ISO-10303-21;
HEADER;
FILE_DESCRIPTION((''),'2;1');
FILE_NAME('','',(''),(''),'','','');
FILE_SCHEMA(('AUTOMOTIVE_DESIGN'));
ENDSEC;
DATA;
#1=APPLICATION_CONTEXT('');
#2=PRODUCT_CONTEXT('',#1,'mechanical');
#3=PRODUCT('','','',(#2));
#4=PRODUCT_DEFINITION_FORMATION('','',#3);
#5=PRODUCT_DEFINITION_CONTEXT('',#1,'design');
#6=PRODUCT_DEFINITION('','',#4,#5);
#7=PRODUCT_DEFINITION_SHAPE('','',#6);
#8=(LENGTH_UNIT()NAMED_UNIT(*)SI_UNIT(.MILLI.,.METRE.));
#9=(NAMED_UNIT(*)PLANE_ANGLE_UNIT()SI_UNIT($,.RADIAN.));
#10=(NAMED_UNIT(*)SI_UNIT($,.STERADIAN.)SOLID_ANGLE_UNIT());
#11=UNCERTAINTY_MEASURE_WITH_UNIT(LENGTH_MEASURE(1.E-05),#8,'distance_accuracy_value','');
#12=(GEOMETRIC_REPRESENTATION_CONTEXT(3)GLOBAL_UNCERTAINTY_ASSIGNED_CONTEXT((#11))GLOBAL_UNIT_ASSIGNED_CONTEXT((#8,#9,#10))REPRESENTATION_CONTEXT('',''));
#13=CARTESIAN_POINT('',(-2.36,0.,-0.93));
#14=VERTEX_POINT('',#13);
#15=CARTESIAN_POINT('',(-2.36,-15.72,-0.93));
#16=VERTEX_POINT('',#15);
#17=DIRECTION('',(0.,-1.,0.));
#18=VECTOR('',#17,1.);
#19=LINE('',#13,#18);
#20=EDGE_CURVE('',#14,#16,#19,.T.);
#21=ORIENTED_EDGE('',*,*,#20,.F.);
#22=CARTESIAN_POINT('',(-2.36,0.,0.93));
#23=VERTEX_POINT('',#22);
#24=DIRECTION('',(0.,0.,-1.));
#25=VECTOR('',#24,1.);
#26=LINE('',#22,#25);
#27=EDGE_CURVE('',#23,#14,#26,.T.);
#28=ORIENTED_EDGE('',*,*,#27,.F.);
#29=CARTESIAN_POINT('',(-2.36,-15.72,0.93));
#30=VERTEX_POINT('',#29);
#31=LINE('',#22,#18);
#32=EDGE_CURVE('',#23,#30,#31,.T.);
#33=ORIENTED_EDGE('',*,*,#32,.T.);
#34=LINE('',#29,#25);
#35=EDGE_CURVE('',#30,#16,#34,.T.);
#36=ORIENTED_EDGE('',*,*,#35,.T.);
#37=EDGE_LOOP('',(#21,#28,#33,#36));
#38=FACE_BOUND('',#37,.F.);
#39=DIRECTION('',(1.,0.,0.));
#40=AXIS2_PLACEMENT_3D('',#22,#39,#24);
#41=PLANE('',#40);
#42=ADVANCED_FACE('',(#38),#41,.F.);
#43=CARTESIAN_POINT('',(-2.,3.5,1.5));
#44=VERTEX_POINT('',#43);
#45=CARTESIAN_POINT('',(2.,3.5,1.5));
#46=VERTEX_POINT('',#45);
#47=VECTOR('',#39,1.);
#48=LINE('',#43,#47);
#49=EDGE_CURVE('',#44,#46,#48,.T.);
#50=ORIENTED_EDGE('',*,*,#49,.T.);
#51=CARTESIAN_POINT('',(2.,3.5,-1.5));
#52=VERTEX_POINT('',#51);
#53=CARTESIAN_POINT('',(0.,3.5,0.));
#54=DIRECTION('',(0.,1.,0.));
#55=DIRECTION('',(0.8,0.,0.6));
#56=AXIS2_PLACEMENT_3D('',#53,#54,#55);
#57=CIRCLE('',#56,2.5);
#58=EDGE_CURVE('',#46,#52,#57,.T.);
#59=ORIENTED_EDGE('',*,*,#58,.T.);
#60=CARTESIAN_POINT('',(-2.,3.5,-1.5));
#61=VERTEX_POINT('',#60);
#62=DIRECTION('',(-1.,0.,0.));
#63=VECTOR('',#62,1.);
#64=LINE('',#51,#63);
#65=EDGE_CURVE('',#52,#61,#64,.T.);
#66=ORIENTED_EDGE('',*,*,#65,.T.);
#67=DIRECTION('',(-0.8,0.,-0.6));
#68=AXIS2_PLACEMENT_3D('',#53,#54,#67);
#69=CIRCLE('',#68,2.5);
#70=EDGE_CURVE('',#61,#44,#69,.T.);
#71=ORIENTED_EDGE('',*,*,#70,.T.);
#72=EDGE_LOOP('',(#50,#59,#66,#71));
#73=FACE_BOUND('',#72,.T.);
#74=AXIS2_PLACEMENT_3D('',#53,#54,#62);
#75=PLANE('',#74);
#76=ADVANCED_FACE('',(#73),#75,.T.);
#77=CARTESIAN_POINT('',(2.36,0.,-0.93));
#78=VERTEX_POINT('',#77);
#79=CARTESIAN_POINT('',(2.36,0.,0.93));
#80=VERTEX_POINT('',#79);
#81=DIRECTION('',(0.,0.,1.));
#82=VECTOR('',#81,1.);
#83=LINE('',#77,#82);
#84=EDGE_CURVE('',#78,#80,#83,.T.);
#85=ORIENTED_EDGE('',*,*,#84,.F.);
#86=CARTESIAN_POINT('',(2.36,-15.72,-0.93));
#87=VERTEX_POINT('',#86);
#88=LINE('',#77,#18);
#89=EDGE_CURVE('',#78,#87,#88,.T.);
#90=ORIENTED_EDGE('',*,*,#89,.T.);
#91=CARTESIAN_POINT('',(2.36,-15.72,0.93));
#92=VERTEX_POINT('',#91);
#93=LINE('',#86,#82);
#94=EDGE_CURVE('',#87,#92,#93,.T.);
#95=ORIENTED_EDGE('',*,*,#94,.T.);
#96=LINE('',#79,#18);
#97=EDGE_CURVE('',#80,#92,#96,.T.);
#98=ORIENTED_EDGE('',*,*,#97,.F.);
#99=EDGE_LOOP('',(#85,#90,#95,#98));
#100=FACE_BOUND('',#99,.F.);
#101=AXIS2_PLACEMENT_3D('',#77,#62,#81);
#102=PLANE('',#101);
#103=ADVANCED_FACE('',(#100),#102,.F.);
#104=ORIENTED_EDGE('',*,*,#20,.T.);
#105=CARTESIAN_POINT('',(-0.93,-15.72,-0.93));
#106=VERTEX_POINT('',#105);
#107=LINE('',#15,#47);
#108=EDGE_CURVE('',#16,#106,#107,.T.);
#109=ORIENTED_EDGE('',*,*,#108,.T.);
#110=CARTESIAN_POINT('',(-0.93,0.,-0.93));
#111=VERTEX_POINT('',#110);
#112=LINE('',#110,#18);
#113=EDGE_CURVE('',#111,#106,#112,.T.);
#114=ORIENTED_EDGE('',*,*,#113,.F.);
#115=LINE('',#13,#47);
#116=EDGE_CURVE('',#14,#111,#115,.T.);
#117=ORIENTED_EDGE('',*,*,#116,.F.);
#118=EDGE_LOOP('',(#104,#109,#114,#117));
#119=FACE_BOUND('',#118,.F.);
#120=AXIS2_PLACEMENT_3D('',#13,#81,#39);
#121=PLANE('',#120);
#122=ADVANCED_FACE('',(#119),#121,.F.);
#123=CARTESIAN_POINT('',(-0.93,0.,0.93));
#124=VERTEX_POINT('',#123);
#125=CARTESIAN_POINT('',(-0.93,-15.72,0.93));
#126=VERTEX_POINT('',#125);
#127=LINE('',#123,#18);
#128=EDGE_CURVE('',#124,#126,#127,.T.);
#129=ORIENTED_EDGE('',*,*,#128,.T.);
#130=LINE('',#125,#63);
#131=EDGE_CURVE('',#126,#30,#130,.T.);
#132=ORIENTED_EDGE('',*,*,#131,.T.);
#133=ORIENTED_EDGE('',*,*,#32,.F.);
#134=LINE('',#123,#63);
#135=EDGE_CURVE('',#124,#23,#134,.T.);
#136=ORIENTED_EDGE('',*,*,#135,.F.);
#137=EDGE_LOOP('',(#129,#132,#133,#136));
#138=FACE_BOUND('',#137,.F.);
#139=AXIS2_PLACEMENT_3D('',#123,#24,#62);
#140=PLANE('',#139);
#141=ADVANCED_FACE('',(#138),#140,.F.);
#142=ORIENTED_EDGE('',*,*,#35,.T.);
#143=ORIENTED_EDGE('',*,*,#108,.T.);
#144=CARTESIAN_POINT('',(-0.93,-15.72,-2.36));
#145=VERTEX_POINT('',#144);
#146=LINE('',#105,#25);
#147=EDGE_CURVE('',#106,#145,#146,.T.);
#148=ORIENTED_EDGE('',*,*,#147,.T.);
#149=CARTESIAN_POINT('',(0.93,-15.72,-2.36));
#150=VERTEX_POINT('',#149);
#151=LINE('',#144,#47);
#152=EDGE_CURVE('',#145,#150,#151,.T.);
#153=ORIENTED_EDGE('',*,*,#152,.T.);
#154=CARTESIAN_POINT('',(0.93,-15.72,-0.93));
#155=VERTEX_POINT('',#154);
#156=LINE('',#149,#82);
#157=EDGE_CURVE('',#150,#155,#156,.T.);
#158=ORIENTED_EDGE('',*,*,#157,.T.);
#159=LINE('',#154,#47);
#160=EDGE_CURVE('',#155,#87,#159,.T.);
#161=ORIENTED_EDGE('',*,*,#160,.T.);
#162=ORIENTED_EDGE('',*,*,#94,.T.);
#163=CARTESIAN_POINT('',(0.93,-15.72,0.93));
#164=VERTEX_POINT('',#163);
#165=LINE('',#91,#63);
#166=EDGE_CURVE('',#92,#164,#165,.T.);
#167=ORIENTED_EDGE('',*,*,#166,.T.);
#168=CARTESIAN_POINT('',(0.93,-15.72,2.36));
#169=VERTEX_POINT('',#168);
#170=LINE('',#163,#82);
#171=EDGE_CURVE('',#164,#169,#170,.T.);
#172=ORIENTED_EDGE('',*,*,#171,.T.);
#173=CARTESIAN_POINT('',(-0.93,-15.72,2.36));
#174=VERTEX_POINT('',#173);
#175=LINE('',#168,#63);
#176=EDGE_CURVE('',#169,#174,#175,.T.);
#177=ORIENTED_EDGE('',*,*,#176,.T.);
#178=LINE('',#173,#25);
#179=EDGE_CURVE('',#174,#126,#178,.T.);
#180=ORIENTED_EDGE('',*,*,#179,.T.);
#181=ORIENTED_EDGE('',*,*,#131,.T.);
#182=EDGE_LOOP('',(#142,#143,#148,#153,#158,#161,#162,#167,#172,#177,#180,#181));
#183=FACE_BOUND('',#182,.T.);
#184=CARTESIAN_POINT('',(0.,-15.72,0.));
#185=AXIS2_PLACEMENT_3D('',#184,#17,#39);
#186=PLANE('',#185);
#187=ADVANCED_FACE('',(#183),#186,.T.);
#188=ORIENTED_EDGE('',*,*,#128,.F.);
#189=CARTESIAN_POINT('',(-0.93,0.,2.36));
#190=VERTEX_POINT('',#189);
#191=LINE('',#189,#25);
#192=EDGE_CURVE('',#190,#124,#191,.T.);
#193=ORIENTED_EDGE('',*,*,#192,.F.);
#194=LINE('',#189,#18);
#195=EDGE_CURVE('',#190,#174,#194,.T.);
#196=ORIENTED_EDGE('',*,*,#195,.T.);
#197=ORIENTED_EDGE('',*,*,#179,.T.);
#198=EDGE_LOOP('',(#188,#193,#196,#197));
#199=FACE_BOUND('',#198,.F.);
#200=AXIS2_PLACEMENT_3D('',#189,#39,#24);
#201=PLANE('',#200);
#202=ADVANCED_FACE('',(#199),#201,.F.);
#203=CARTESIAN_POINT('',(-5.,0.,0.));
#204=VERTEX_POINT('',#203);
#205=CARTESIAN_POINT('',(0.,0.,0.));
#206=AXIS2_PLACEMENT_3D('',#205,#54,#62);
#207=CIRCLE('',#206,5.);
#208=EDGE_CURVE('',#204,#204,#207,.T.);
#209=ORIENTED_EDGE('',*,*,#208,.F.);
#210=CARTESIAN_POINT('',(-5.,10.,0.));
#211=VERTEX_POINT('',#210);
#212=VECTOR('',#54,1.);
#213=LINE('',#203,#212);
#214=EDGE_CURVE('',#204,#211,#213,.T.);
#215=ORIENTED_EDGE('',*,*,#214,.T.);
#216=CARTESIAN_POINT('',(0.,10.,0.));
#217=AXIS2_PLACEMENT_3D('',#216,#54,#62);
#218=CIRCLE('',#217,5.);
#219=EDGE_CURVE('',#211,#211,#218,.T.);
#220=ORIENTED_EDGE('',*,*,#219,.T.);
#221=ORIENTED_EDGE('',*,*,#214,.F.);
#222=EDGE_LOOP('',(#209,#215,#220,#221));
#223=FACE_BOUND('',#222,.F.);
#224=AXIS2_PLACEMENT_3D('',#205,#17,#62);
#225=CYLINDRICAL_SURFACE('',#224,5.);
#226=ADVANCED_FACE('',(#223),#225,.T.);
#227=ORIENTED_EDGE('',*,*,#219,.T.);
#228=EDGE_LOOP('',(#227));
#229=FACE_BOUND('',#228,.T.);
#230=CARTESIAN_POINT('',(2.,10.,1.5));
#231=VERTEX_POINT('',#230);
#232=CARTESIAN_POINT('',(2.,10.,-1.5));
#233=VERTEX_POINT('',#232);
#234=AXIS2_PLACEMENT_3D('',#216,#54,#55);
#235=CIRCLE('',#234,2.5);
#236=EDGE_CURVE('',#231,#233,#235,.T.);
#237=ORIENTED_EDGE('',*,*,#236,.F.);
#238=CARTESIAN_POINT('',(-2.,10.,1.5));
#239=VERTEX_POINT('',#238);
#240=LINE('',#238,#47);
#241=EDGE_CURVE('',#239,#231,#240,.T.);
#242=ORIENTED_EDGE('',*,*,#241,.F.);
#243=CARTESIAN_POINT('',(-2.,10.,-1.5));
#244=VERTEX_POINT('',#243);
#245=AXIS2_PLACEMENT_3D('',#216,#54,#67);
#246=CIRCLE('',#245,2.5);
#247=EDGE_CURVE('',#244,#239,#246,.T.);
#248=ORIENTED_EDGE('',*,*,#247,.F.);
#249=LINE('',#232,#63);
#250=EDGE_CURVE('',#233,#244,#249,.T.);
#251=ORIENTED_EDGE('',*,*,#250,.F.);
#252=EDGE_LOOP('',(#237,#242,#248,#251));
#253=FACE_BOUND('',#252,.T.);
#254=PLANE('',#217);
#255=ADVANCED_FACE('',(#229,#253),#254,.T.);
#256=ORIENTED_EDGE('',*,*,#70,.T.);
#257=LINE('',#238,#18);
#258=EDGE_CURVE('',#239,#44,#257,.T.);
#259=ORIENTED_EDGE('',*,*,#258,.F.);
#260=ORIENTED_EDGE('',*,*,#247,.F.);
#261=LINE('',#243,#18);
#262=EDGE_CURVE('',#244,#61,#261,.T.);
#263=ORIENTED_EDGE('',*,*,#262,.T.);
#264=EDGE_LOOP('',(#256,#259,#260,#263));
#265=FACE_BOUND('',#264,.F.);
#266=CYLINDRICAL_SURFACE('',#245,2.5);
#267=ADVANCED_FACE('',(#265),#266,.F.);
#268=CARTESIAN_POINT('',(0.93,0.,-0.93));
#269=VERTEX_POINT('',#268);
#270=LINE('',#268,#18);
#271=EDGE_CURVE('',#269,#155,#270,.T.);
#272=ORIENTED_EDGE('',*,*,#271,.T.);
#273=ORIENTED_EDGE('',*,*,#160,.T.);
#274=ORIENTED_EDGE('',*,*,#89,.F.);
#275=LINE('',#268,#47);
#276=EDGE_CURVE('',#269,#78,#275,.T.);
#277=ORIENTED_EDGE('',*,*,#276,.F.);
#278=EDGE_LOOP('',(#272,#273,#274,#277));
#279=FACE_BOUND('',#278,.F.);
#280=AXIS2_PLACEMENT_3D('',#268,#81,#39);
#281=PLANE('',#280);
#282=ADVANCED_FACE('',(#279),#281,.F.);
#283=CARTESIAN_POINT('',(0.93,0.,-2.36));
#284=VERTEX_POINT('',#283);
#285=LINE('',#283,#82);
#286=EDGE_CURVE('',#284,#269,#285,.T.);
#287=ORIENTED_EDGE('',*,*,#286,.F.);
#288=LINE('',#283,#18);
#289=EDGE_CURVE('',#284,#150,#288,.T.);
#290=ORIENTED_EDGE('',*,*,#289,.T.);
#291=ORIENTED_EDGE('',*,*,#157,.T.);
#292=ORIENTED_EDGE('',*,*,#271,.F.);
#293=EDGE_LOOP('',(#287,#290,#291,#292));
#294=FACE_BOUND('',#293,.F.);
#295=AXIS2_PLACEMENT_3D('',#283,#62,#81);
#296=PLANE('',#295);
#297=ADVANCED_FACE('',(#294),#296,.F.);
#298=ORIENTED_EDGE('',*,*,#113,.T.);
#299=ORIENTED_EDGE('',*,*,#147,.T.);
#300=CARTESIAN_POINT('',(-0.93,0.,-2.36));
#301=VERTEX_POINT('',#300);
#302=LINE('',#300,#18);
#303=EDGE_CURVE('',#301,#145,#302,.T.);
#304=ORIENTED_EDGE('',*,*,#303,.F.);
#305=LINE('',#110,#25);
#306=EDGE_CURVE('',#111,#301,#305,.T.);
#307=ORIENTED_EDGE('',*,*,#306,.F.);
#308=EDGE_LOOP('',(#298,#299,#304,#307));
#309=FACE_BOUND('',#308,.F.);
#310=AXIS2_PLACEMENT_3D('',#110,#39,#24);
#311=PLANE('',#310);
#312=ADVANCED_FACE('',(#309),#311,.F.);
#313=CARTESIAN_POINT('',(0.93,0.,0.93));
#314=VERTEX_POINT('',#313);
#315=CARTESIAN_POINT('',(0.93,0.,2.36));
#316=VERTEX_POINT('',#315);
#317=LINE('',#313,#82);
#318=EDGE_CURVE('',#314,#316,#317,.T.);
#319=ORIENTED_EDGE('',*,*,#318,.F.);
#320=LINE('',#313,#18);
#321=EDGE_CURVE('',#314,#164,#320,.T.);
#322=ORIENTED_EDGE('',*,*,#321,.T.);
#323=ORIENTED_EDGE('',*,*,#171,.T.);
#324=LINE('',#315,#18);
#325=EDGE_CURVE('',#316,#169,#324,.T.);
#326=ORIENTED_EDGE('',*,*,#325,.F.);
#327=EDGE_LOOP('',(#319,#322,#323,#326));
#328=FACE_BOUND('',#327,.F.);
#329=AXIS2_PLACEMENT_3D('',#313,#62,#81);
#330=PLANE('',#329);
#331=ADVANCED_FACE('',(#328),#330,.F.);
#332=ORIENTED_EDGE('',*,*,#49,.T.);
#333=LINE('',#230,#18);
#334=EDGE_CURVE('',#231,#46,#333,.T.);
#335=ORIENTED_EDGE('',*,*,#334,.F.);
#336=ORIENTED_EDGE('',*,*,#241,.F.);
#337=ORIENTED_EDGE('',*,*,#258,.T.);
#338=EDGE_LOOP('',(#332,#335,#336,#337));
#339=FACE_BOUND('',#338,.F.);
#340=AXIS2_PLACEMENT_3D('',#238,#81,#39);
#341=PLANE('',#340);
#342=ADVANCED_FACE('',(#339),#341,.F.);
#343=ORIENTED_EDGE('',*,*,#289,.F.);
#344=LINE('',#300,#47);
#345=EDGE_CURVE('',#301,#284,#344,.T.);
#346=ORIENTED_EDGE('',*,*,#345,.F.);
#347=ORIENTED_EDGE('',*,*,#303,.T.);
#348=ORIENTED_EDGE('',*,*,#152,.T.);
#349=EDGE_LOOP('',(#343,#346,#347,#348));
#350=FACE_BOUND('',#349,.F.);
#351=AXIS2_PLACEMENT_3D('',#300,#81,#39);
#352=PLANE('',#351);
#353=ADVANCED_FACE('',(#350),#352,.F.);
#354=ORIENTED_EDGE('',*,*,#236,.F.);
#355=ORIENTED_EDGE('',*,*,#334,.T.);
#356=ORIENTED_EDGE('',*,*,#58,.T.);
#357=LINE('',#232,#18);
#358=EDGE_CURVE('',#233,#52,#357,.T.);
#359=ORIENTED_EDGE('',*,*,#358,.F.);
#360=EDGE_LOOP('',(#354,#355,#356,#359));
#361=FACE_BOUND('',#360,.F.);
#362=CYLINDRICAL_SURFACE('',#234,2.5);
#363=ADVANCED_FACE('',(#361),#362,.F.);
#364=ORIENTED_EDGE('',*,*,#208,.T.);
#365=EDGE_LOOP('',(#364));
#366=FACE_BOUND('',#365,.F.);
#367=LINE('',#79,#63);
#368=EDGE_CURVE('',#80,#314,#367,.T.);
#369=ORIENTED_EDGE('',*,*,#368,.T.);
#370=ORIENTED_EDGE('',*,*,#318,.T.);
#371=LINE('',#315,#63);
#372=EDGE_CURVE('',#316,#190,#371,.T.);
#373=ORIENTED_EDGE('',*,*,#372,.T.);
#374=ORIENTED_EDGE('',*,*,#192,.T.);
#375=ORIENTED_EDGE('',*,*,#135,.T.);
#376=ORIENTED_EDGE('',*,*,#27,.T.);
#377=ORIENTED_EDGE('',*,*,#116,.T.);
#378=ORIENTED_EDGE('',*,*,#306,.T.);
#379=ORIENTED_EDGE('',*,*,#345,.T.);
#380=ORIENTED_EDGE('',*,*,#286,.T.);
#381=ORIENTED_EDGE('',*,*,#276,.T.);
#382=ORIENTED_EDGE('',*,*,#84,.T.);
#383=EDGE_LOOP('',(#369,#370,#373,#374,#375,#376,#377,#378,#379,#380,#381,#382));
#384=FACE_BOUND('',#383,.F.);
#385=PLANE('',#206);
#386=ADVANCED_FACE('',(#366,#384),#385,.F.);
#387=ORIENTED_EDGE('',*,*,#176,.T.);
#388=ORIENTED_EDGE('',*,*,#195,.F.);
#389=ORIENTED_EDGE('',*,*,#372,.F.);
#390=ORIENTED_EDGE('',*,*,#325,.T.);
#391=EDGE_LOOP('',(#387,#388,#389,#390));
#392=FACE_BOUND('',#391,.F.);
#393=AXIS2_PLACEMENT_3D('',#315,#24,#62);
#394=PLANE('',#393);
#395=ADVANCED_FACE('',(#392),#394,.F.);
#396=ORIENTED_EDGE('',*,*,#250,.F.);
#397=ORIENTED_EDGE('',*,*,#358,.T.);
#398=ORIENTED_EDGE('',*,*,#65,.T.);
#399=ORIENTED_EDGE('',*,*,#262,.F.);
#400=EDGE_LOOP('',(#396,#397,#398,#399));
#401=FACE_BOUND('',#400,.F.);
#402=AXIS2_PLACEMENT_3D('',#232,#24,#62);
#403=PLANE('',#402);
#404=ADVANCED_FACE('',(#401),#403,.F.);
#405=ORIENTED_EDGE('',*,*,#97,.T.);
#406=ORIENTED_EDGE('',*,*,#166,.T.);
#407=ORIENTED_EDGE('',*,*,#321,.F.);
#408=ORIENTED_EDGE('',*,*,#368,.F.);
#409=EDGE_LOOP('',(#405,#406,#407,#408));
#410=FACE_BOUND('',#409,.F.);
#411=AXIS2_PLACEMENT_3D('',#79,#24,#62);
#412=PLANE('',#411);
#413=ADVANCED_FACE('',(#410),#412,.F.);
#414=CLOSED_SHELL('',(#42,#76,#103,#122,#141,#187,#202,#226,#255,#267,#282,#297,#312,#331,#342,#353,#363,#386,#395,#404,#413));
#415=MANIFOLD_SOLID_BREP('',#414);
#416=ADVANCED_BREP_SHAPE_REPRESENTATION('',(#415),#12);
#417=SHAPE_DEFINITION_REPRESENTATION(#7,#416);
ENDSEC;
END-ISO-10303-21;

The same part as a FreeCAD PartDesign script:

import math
import FreeCAD as App
import Part
import Sketcher

V = App.Vector


def add_polygon(sketch, points):
    """Adds a closed chain of lines whose ends are joined by coincident constraints."""
    first, n = sketch.GeometryCount, len(points)
    for a, b in zip(points, points[1:] + points[:1]):
        sketch.addGeometry(Part.LineSegment(App.Vector(*a, 0), App.Vector(*b, 0)), False)
    for i in range(n):
        sketch.addConstraint(Sketcher.Constraint("Coincident", first + i, 2, first + (i + 1) % n, 1))

doc = App.newDocument("Part")
body = doc.addObject("PartDesign::Body", "Body")

# Sketch on XZ plane
sketch1 = body.newObject("Sketcher::SketchObject", "Sketch")
sketch1.AttachmentSupport = (doc.getObject("XZ_Plane"), [""])
sketch1.MapMode = "FlatFace"
add_polygon(sketch1, [(0.9, 0.9), (0.9, 2.4), (-0.9, 2.4), (-0.9, 0.9), (-2.4, 0.9), (-2.4, -0.9), (-0.9, -0.9), (-0.9, -2.4), (0.9, -2.4), (0.9, -0.9), (2.4, -0.9), (2.4, 0.9)])  # lines 0-11
sketch1.addConstraint([
    Sketcher.Constraint("Vertical", 0),
    Sketcher.Constraint("Horizontal", 1),
    Sketcher.Constraint("Vertical", 2),
    Sketcher.Constraint("Horizontal", 3),
    Sketcher.Constraint("Vertical", 4),
    Sketcher.Constraint("Horizontal", 5),
    Sketcher.Constraint("Vertical", 6),
    Sketcher.Constraint("Horizontal", 7),
    Sketcher.Constraint("Vertical", 8),
    Sketcher.Constraint("Horizontal", 9),
    Sketcher.Constraint("Vertical", 10),
    Sketcher.Constraint("Horizontal", 11),
    Sketcher.Constraint("Symmetric", 0, 2, 6, 2, -1, 1),
    Sketcher.Constraint("Symmetric", 2, 2, 8, 2, -1, 1),
    Sketcher.Constraint("Symmetric", 4, 2, 10, 2, -1, 1),
    Sketcher.Constraint("Symmetric", 5, 2, 8, 2, -2),
    Sketcher.Constraint("Equal", 11, 0),
    Sketcher.Constraint("Equal", 7, 4),
    Sketcher.Constraint("DistanceX", 1, 2, 1, 1, 1.86),
    Sketcher.Constraint("DistanceX", 3, 2, 3, 1, 1.43),
])
pad1 = body.newObject("PartDesign::Pad", "Pad")
pad1.Profile = sketch1
pad1.Length = 15.72

# Sketch on XZ plane
sketch2 = body.newObject("Sketcher::SketchObject", "Sketch001")
sketch2.AttachmentSupport = (doc.getObject("XZ_Plane"), [""])
sketch2.MapMode = "FlatFace"
sketch2.addGeometry(Part.Circle(V(0, 0, 0), V(0, 0, 1), 5), False)
sketch2.addConstraint([
    Sketcher.Constraint("Coincident", 0, 3, -1, 1),
    Sketcher.Constraint("Diameter", 0, 10.0),
])
pad2 = body.newObject("PartDesign::Pad", "Pad001")
pad2.Profile = sketch2
pad2.Length = 10
pad2.Reversed = True

# Sketch on XZ plane
sketch3 = body.newObject("Sketcher::SketchObject", "Sketch002")
sketch3.AttachmentSupport = (doc.getObject("XZ_Plane"), [""])
sketch3.MapMode = "FlatFace"
sketch3.AttachmentOffset = App.Placement(V(0, 0, -10), App.Rotation())
sketch3.addGeometry([
    Part.ArcOfCircle(Part.Circle(V(0, 0, 0), V(0, 0, 1), 2.5), math.radians(143), math.radians(217)),
    Part.LineSegment(V(-2, 1.5, 0), V(2, 1.5, 0)),
    Part.ArcOfCircle(Part.Circle(V(0, 0, 0), V(0, 0, 1), 2.5), math.radians(-37), math.radians(37)),
    Part.LineSegment(V(2, -1.5, 0), V(-2, -1.5, 0)),
], False)
sketch3.addConstraint([
    Sketcher.Constraint("Coincident", 0, 1, 1, 1),
    Sketcher.Constraint("Coincident", 1, 2, 2, 2),
    Sketcher.Constraint("Coincident", 2, 1, 3, 1),
    Sketcher.Constraint("Coincident", 3, 2, 0, 2),
    Sketcher.Constraint("Horizontal", 1),
    Sketcher.Constraint("Horizontal", 3),
    Sketcher.Constraint("Coincident", 0, 3, -1, 1),
    Sketcher.Constraint("Coincident", 2, 3, -1, 1),
    Sketcher.Constraint("Equal", 0, 2),
    Sketcher.Constraint("Vertical", 1, 2, 2, 1),
    Sketcher.Constraint("Radius", 0, 2.5),
    Sketcher.Constraint("DistanceX", 1, 1, 1, 2, 4.0),
])
pocket1 = body.newObject("PartDesign::Pocket", "Pocket")
pocket1.Profile = sketch3
pocket1.Length = 6.5
pocket1.Reversed = True

doc.recompute()
